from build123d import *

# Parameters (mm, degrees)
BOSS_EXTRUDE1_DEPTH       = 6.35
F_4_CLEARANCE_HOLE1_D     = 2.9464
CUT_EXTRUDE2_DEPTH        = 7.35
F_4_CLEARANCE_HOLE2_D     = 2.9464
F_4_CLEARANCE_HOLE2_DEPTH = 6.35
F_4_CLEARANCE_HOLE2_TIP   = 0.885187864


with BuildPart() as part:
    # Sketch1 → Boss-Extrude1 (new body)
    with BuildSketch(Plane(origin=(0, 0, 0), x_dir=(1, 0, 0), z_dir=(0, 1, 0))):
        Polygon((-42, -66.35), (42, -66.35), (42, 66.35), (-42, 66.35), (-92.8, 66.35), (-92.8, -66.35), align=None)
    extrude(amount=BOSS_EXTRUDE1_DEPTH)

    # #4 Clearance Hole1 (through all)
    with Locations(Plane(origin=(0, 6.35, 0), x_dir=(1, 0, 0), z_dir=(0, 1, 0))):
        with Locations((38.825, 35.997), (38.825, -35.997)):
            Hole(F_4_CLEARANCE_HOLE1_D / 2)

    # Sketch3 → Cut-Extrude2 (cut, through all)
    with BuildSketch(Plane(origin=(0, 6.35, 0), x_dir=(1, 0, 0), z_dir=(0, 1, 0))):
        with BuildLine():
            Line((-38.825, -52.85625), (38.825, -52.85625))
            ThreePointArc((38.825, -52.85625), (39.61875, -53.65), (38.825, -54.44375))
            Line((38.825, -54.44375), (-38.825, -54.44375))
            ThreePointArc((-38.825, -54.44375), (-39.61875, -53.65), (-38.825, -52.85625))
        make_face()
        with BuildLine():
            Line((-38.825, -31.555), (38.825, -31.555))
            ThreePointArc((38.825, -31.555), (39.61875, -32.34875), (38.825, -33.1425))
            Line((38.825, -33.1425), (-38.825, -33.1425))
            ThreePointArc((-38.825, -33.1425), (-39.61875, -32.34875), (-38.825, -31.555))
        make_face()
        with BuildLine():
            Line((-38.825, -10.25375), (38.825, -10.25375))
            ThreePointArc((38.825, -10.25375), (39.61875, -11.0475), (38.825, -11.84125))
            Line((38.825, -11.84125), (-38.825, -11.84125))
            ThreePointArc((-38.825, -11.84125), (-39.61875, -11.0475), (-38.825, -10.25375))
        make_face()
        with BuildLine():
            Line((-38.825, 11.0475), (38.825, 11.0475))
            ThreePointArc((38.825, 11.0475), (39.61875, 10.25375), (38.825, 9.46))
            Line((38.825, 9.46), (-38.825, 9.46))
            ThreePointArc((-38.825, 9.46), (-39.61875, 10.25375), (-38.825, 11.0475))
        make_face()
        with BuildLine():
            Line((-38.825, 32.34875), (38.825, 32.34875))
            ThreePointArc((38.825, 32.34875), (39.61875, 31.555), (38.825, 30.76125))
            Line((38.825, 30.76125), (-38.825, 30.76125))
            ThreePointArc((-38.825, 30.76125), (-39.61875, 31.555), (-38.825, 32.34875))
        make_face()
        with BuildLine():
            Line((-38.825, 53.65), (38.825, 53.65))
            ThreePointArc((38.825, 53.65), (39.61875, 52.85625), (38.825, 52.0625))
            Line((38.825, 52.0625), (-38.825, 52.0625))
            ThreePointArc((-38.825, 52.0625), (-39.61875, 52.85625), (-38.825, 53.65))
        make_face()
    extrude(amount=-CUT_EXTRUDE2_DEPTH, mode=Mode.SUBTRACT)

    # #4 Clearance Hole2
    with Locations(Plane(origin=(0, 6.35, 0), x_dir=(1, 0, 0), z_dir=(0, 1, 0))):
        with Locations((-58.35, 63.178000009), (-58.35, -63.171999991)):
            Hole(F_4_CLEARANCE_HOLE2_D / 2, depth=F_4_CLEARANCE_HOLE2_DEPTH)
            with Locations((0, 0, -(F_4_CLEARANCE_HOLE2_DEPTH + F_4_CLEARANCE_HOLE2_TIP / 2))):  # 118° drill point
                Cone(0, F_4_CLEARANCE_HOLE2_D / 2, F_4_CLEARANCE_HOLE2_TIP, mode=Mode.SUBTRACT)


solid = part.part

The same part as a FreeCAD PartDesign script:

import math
import FreeCAD as App
import Part
import Sketcher
from FreeCAD import Vector
Q = App.Units.Quantity


def add_polygon(sketch, points):
    """Adds a closed chain of lines whose ends are joined by coincident constraints."""
    first, n = sketch.GeometryCount, len(points)
    for a, b in zip(points, points[1:] + points[:1]):
        sketch.addGeometry(Part.LineSegment(App.Vector(*a, 0), App.Vector(*b, 0)), False)
    for i in range(n):
        sketch.addConstraint(Sketcher.Constraint("Coincident", first + i, 2, first + (i + 1) % n, 1))

doc = App.newDocument("Part")
body = doc.addObject("PartDesign::Body", "Body")

# Sketch on XZ plane
sketch1 = doc.addObject("Sketcher::SketchObject", "Sketch")
body.addObject(sketch1)
sketch1.AttachmentSupport = (doc.XZ_Plane, [""])
sketch1.MapMode = "FlatFace"
add_polygon(sketch1, [(42, 66), (42, -66), (-93, -66), (-93, 66)])  # lines 0-3
sketch1.addConstraint(Sketcher.Constraint("Vertical", 0))
sketch1.addConstraint(Sketcher.Constraint("Horizontal", 1))
sketch1.addConstraint(Sketcher.Constraint("Vertical", 2))
sketch1.addConstraint(Sketcher.Constraint("Horizontal", 3))
sketch1.addConstraint(Sketcher.Constraint("DistanceX", 1, 2, 1, 1, 134.8))
sketch1.addConstraint(Sketcher.Constraint("DistanceY", 0, 2, 0, 1, 132.7))
sketch1.addConstraint(Sketcher.Constraint("DistanceX", -1, 1, 0, 2, 42.0))
sketch1.addConstraint(Sketcher.Constraint("DistanceY", 0, 2, -1, 1, 66.35))
pad1 = doc.addObject("PartDesign::Pad", "Pad")
body.addObject(pad1)
pad1.Profile = sketch1
pad1.Length = Q("0.25 in")
pad1.Reversed = True

# Sketch on XZ plane
sketch2 = doc.addObject("Sketcher::SketchObject", "Sketch001")
body.addObject(sketch2)
sketch2.AttachmentSupport = (doc.XZ_Plane, [""])
sketch2.MapMode = "FlatFace"
sketch2.AttachmentOffset = App.Placement(Vector(0, 0, -0.25 * 25.4), App.Rotation())
sketch2.addGeometry(Part.Circle(Vector(38.8, -36, 0), Vector(0, 0, 1), 1.5), False)
sketch2.addGeometry(Part.Circle(Vector(38.8, 36, 0), Vector(0, 0, 1), 1.5), False)
sketch2.addConstraint(Sketcher.Constraint("Equal", 0, 1))
sketch2.addConstraint(Sketcher.Constraint("Symmetric", 0, 3, 1, 3, -1))
sketch2.addConstraint(Sketcher.Constraint("Diameter", 0, Q("0.116 in")))
sketch2.addConstraint(Sketcher.Constraint("DistanceX", -1, 1, 0, 3, 38.825))
sketch2.addConstraint(Sketcher.Constraint("DistanceY", 0, 3, -1, 1, 35.997))
doc.recompute()
hole = doc.addObject("PartDesign::Hole", "Hole")
body.addObject(hole)
hole.Profile = sketch2
hole.ThreadType = "None"
hole.Diameter = Q("0.116 in")
hole.DepthType = "ThroughAll"
hole.Reversed = True

# Sketch on XZ plane
sketch3 = doc.addObject("Sketcher::SketchObject", "Sketch002")
body.addObject(sketch3)
sketch3.AttachmentSupport = (doc.XZ_Plane, [""])
sketch3.MapMode = "FlatFace"
sketch3.AttachmentOffset = App.Placement(Vector(0, 0, -0.25 * 25.4), App.Rotation())
sketch3.addGeometry(Part.LineSegment(Vector(38.8, 52.9, 0), Vector(-38.8, 52.9, 0)), False)
sketch3.addGeometry(Part.ArcOfCircle(Part.Circle(Vector(-38.8, 53.6, 0), Vector(0, 0, 1), 0.8), math.radians(90), math.radians(270)), False)
sketch3.addGeometry(Part.LineSegment(Vector(-38.8, 54.4, 0), Vector(38.8, 54.4, 0)), False)
sketch3.addGeometry(Part.ArcOfCircle(Part.Circle(Vector(38.8, 53.6, 0), Vector(0, 0, 1), 0.8), math.radians(-90), math.radians(90)), False)
sketch3.addGeometry(Part.LineSegment(Vector(38.8, 31.6, 0), Vector(-38.8, 31.6, 0)), False)
sketch3.addGeometry(Part.ArcOfCircle(Part.Circle(Vector(-38.8, 32.3, 0), Vector(0, 0, 1), 0.8), math.radians(90), math.radians(270)), False)
sketch3.addGeometry(Part.LineSegment(Vector(-38.8, 33.1, 0), Vector(38.8, 33.1, 0)), False)
sketch3.addGeometry(Part.ArcOfCircle(Part.Circle(Vector(38.8, 32.3, 0), Vector(0, 0, 1), 0.8), math.radians(-90), math.radians(90)), False)
sketch3.addGeometry(Part.LineSegment(Vector(38.8, 10.3, 0), Vector(-38.8, 10.3, 0)), False)
sketch3.addGeometry(Part.ArcOfCircle(Part.Circle(Vector(-38.8, 11, 0), Vector(0, 0, 1), 0.8), math.radians(90), math.radians(270)), False)
sketch3.addGeometry(Part.LineSegment(Vector(-38.8, 11.8, 0), Vector(38.8, 11.8, 0)), False)
sketch3.addGeometry(Part.ArcOfCircle(Part.Circle(Vector(38.8, 11, 0), Vector(0, 0, 1), 0.8), math.radians(-90), math.radians(90)), False)
sketch3.addGeometry(Part.LineSegment(Vector(38.8, -11, 0), Vector(-38.8, -11, 0)), False)
sketch3.addGeometry(Part.ArcOfCircle(Part.Circle(Vector(-38.8, -10.3, 0), Vector(0, 0, 1), 0.8), math.radians(90), math.radians(270)), False)
sketch3.addGeometry(Part.LineSegment(Vector(-38.8, -9.5, 0), Vector(38.8, -9.5, 0)), False)
sketch3.addGeometry(Part.ArcOfCircle(Part.Circle(Vector(38.8, -10.3, 0), Vector(0, 0, 1), 0.8), math.radians(-90), math.radians(90)), False)
sketch3.addGeometry(Part.LineSegment(Vector(38.8, -32.3, 0), Vector(-38.8, -32.3, 0)), False)
sketch3.addGeometry(Part.ArcOfCircle(Part.Circle(Vector(-38.8, -31.6, 0), Vector(0, 0, 1), 0.8), math.radians(90), math.radians(270)), False)
sketch3.addGeometry(Part.LineSegment(Vector(-38.8, -30.8, 0), Vector(38.8, -30.8, 0)), False)
sketch3.addGeometry(Part.ArcOfCircle(Part.Circle(Vector(38.8, -31.6, 0), Vector(0, 0, 1), 0.8), math.radians(-90), math.radians(90)), False)
sketch3.addGeometry(Part.LineSegment(Vector(38.8, -53.6, 0), Vector(-38.8, -53.6, 0)), False)
sketch3.addGeometry(Part.ArcOfCircle(Part.Circle(Vector(-38.8, -52.9, 0), Vector(0, 0, 1), 0.8), math.radians(90), math.radians(270)), False)
sketch3.addGeometry(Part.LineSegment(Vector(-38.8, -52.1, 0), Vector(38.8, -52.1, 0)), False)
sketch3.addGeometry(Part.ArcOfCircle(Part.Circle(Vector(38.8, -52.9, 0), Vector(0, 0, 1), 0.8), math.radians(-90), math.radians(90)), False)
sketch3.addConstraint(Sketcher.Constraint("Tangent", 0, 2, 1, 2))
sketch3.addConstraint(Sketcher.Constraint("Tangent", 1, 1, 2, 1))
sketch3.addConstraint(Sketcher.Constraint("Tangent", 2, 2, 3, 2))
sketch3.addConstraint(Sketcher.Constraint("Tangent", 3, 1, 0, 1))
sketch3.addConstraint(Sketcher.Constraint("Tangent", 4, 2, 5, 2))
sketch3.addConstraint(Sketcher.Constraint("Tangent", 5, 1, 6, 1))
sketch3.addConstraint(Sketcher.Constraint("Tangent", 6, 2, 7, 2))
sketch3.addConstraint(Sketcher.Constraint("Tangent", 7, 1, 4, 1))
sketch3.addConstraint(Sketcher.Constraint("Tangent", 8, 2, 9, 2))
sketch3.addConstraint(Sketcher.Constraint("Tangent", 9, 1, 10, 1))
sketch3.addConstraint(Sketcher.Constraint("Tangent", 10, 2, 11, 2))
sketch3.addConstraint(Sketcher.Constraint("Tangent", 11, 1, 8, 1))
sketch3.addConstraint(Sketcher.Constraint("Tangent", 12, 2, 13, 2))
sketch3.addConstraint(Sketcher.Constraint("Tangent", 13, 1, 14, 1))
sketch3.addConstraint(Sketcher.Constraint("Tangent", 14, 2, 15, 2))
sketch3.addConstraint(Sketcher.Constraint("Tangent", 15, 1, 12, 1))
sketch3.addConstraint(Sketcher.Constraint("Tangent", 16, 2, 17, 2))
sketch3.addConstraint(Sketcher.Constraint("Tangent", 17, 1, 18, 1))
sketch3.addConstraint(Sketcher.Constraint("Tangent", 18, 2, 19, 2))
sketch3.addConstraint(Sketcher.Constraint("Tangent", 19, 1, 16, 1))
sketch3.addConstraint(Sketcher.Constraint("Tangent", 20, 2, 21, 2))
sketch3.addConstraint(Sketcher.Constraint("Tangent", 21, 1, 22, 1))
sketch3.addConstraint(Sketcher.Constraint("Tangent", 22, 2, 23, 2))
sketch3.addConstraint(Sketcher.Constraint("Tangent", 23, 1, 20, 1))
sketch3.addConstraint(Sketcher.Constraint("Horizontal", 0))
sketch3.addConstraint(Sketcher.Constraint("Horizontal", 2))
sketch3.addConstraint(Sketcher.Constraint("Horizontal", 4))
sketch3.addConstraint(Sketcher.Constraint("Horizontal", 6))
sketch3.addConstraint(Sketcher.Constraint("Horizontal", 8))
sketch3.addConstraint(Sketcher.Constraint("Horizontal", 10))
sketch3.addConstraint(Sketcher.Constraint("Horizontal", 12))
sketch3.addConstraint(Sketcher.Constraint("Horizontal", 14))
sketch3.addConstraint(Sketcher.Constraint("Horizontal", 16))
sketch3.addConstraint(Sketcher.Constraint("Horizontal", 18))
sketch3.addConstraint(Sketcher.Constraint("Horizontal", 20))
sketch3.addConstraint(Sketcher.Constraint("Horizontal", 22))
sketch3.addConstraint(Sketcher.Constraint("Equal", 3, 5))
sketch3.addConstraint(Sketcher.Constraint("Equal", 7, 9))
sketch3.addConstraint(Sketcher.Constraint("Equal", 11, 13))
sketch3.addConstraint(Sketcher.Constraint("Equal", 15, 17))
sketch3.addConstraint(Sketcher.Constraint("Equal", 19, 21))
sketch3.addConstraint(Sketcher.Constraint("Vertical", 1, 3, 5, 3))
sketch3.addConstraint(Sketcher.Constraint("Vertical", 3, 3, 7, 3))
sketch3.addConstraint(Sketcher.Constraint("Vertical", 5, 3, 9, 3))
sketch3.addConstraint(Sketcher.Constraint("Vertical", 7, 3, 11, 3))
sketch3.addConstraint(Sketcher.Constraint("Vertical", 9, 3, 13, 3))
sketch3.addConstraint(Sketcher.Constraint("Vertical", 11, 3, 15, 3))
sketch3.addConstraint(Sketcher.Constraint("Vertical", 13, 3, 17, 3))
sketch3.addConstraint(Sketcher.Constraint("Vertical", 15, 3, 19, 3))
sketch3.addConstraint(Sketcher.Constraint("Vertical", 17, 3, 21, 3))
sketch3.addConstraint(Sketcher.Constraint("Vertical", 19, 3, 23, 3))
sketch3.addConstraint(Sketcher.Constraint("Radius", 1, Q("0.03125 in")))
sketch3.addConstraint(Sketcher.Constraint("DistanceX", 0, 2, 0, 1, 77.65))
sketch3.addConstraint(Sketcher.Constraint("DistanceX", 1, 3, -1, 1, 38.825))
sketch3.addConstraint(Sketcher.Constraint("DistanceY", -1, 1, 1, 3, 53.65))
sketch3.addConstraint(Sketcher.Constraint("DistanceY", -1, 1, 9, 3, 11.0475))
sketch3.addConstraint(Sketcher.Constraint("DistanceY", 17, 3, -1, 1, 31.555))
sketch3.addConstraint(Sketcher.Constraint("DistanceY", -1, 1, 4, 2, 31.555))
sketch3.addConstraint(Sketcher.Constraint("DistanceY", 12, 2, -1, 1, 11.0475))
sketch3.addConstraint(Sketcher.Constraint("DistanceY", 20, 2, -1, 1, 53.65))
pocket1 = doc.addObject("PartDesign::Pocket", "Pocket")
body.addObject(pocket1)
pocket1.Profile = sketch3
pocket1.Type = "ThroughAll"
pocket1.Reversed = True

# Sketch on XZ plane
sketch4 = doc.addObject("Sketcher::SketchObject", "Sketch003")
body.addObject(sketch4)
sketch4.AttachmentSupport = (doc.XZ_Plane, [""])
sketch4.MapMode = "FlatFace"
sketch4.AttachmentOffset = App.Placement(Vector(0, 0, -0.25 * 25.4), App.Rotation())
sketch4.addGeometry(Part.Circle(Vector(-58.4, -63.2, 0), Vector(0, 0, 1), 1.5), False)
sketch4.addGeometry(Part.Circle(Vector(-58.4, 63.2, 0), Vector(0, 0, 1), 1.5), False)
sketch4.addConstraint(Sketcher.Constraint("Equal", 0, 1))
sketch4.addConstraint(Sketcher.Constraint("Vertical", 0, 3, 1, 3))
sketch4.addConstraint(Sketcher.Constraint("Diameter", 0, Q("0.116 in")))
sketch4.addConstraint(Sketcher.Constraint("DistanceX", 0, 3, -1, 1, 58.35))
sketch4.addConstraint(Sketcher.Constraint("DistanceY", 0, 3, -1, 1, 63.178))
sketch4.addConstraint(Sketcher.Constraint("DistanceY", -1, 1, 1, 3, 63.172))
doc.recompute()
hole2 = doc.addObject("PartDesign::Hole", "Hole001")
body.addObject(hole2)
hole2.Profile = sketch4
hole2.ThreadType = "None"
hole2.Diameter = Q("0.116 in")
hole2.DepthType = "Dimension"
hole2.Depth = Q("0.25 in")
hole2.DrillPoint = "Angled"
hole2.DrillPointAngle = 118
hole2.Reversed = True

doc.recompute()
